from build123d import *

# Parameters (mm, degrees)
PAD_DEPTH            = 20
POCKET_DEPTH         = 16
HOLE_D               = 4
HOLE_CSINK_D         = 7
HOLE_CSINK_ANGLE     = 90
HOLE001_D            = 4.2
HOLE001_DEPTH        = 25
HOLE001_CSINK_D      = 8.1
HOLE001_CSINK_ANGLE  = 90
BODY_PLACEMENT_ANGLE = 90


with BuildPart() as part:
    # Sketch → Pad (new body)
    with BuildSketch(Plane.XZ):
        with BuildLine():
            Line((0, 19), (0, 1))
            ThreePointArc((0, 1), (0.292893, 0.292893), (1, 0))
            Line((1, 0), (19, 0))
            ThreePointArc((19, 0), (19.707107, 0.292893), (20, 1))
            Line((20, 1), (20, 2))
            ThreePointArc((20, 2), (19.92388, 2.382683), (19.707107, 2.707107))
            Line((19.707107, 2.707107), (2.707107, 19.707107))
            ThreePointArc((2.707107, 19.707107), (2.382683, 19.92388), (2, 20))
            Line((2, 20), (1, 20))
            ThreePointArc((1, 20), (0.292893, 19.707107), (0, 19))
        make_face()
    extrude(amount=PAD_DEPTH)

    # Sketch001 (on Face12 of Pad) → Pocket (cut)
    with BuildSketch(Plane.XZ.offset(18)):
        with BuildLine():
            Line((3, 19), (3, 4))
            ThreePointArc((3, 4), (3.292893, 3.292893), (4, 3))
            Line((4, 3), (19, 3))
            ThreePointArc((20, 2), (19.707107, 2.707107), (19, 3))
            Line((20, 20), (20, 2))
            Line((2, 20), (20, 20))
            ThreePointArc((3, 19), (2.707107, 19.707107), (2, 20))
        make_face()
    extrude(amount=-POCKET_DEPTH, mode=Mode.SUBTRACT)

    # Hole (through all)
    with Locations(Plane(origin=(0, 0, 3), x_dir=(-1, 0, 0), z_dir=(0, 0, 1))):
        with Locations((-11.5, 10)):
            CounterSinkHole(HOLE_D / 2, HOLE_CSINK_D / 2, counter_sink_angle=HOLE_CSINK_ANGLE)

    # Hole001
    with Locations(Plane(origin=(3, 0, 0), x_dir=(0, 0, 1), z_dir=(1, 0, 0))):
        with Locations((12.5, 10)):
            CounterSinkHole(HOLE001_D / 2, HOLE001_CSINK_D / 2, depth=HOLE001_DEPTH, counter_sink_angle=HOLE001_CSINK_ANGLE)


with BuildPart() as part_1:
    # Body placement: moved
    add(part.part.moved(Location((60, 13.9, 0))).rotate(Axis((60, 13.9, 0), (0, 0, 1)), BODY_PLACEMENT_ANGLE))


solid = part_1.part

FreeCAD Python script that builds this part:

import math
import FreeCAD as App
import Part
import Sketcher

doc = App.newDocument("Part")
body = doc.addObject("PartDesign::Body", "Body")

sketch1 = body.newObject("Sketcher::SketchObject", "Sketch")
sketch1.AttachmentSupport = (doc.getObject("XZ_Plane"), [""])
sketch1.MapMode = "FlatFace"
sketch1.addGeometry(Part.LineSegment(App.Vector(0, 19, 0), App.Vector(0, 1, 0)), False)
sketch1.addGeometry(Part.ArcOfCircle(Part.Circle(App.Vector(0.999999, 0.999999, 0), App.Vector(0, 0, 1), 0.999999), math.radians(179.999957), math.radians(270.000043)), False)
sketch1.addGeometry(Part.LineSegment(App.Vector(1, 0, 0), App.Vector(19, 0, 0)), False)
sketch1.addGeometry(Part.ArcOfCircle(Part.Circle(App.Vector(19.000001, 0.999999, 0), App.Vector(0, 0, 1), 0.999999), math.radians(-90.000043), math.radians(0.000043)), False)
sketch1.addGeometry(Part.LineSegment(App.Vector(20, 1, 0), App.Vector(20, 2, 0)), False)
sketch1.addGeometry(Part.ArcOfCircle(Part.Circle(App.Vector(19.000001, 2.000001, 0), App.Vector(0, 0, 1), 0.999999), math.radians(-0.000054), math.radians(45.000011)), False)
sketch1.addGeometry(Part.LineSegment(App.Vector(19.707107, 2.707107, 0), App.Vector(2.707107, 19.707107, 0)), False)
sketch1.addGeometry(Part.ArcOfCircle(Part.Circle(App.Vector(2.000001, 19.000001, 0), App.Vector(0, 0, 1), 0.999999), math.radians(44.999989), math.radians(90.000054)), False)
sketch1.addGeometry(Part.LineSegment(App.Vector(2, 20, 0), App.Vector(1, 20, 0)), False)
sketch1.addGeometry(Part.ArcOfCircle(Part.Circle(App.Vector(0.999999, 19.000001, 0), App.Vector(0, 0, 1), 0.999999), math.radians(89.999957), math.radians(180.000043)), False)
sketch1.addConstraint(Sketcher.Constraint("Tangent", 0, 2, 1, 1))
sketch1.addConstraint(Sketcher.Constraint("Tangent", 1, 2, 2, 1))
sketch1.addConstraint(Sketcher.Constraint("Tangent", 2, 2, 3, 1))
sketch1.addConstraint(Sketcher.Constraint("Tangent", 3, 2, 4, 1))
sketch1.addConstraint(Sketcher.Constraint("Tangent", 4, 2, 5, 1))
sketch1.addConstraint(Sketcher.Constraint("Tangent", 5, 2, 6, 1))
sketch1.addConstraint(Sketcher.Constraint("Tangent", 6, 2, 7, 1))
sketch1.addConstraint(Sketcher.Constraint("Tangent", 7, 2, 8, 1))
sketch1.addConstraint(Sketcher.Constraint("Tangent", 8, 2, 9, 1))
sketch1.addConstraint(Sketcher.Constraint("Tangent", 9, 2, 0, 1))
sketch1.addConstraint(Sketcher.Constraint("Vertical", 0))
sketch1.addConstraint(Sketcher.Constraint("Horizontal", 2))
sketch1.addConstraint(Sketcher.Constraint("Vertical", 4))
sketch1.addConstraint(Sketcher.Constraint("Horizontal", 8))
sketch1.addConstraint(Sketcher.Constraint("Equal", 1, 3))
sketch1.addConstraint(Sketcher.Constraint("Equal", 3, 5))
sketch1.addConstraint(Sketcher.Constraint("Equal", 5, 7))
sketch1.addConstraint(Sketcher.Constraint("Equal", 7, 9))
sketch1.addConstraint(Sketcher.Constraint("PointOnObject", 0, 2, -2))
sketch1.addConstraint(Sketcher.Constraint("PointOnObject", 1, 2, -1))
sketch1.addConstraint(Sketcher.Constraint("Equal", 2, 0))
sketch1.addConstraint(Sketcher.Constraint("Equal", 8, 4))
sketch1.addConstraint(Sketcher.Constraint("Radius", 1, 0.999999))
sketch1.addConstraint(Sketcher.Constraint("DistanceX", 2, 1, 2, 2, 18.0))
sketch1.addConstraint(Sketcher.Constraint("DistanceX", 8, 2, 8, 1, 1.0))
pad1 = body.newObject("PartDesign::Pad", "Pad")
pad1.Profile = sketch1
pad1.Length = 20

sketch2 = body.newObject("Sketcher::SketchObject", "Sketch001")
sketch2.AttachmentSupport = (doc.getObject("XZ_Plane"), [""])
sketch2.MapMode = "FlatFace"
sketch2.AttachmentOffset = App.Placement(App.Vector(0, 0, 18), App.Rotation())
sketch2.addGeometry(Part.LineSegment(App.Vector(3, 19, 0), App.Vector(3, 4, 0)), False)
sketch2.addGeometry(Part.ArcOfCircle(Part.Circle(App.Vector(3.999999, 3.999999, 0), App.Vector(0, 0, 1), 0.999999), math.radians(179.999957), math.radians(270.000043)), False)
sketch2.addGeometry(Part.LineSegment(App.Vector(4, 3, 0), App.Vector(19, 3, 0)), False)
sketch2.addGeometry(Part.ArcOfCircle(Part.Circle(App.Vector(19.000001, 2.000001, 0), App.Vector(0, 0, 1), 0.999999), math.radians(-0.000043), math.radians(90.000043)), False)
sketch2.addGeometry(Part.LineSegment(App.Vector(20, 2, 0), App.Vector(20, 20, 0)), False)
sketch2.addGeometry(Part.LineSegment(App.Vector(20, 20, 0), App.Vector(2, 20, 0)), False)
sketch2.addGeometry(Part.ArcOfCircle(Part.Circle(App.Vector(2.000001, 19.000001, 0), App.Vector(0, 0, 1), 0.999999), math.radians(-0.000043), math.radians(90.000043)), False)
sketch2.addConstraint(Sketcher.Constraint("Tangent", 0, 2, 1, 1))
sketch2.addConstraint(Sketcher.Constraint("Tangent", 1, 2, 2, 1))
sketch2.addConstraint(Sketcher.Constraint("Tangent", 2, 2, 3, 2))
sketch2.addConstraint(Sketcher.Constraint("Tangent", 3, 1, 4, 1))
sketch2.addConstraint(Sketcher.Constraint("Coincident", 4, 2, 5, 1))
sketch2.addConstraint(Sketcher.Constraint("Tangent", 5, 2, 6, 2))
sketch2.addConstraint(Sketcher.Constraint("Tangent", 6, 1, 0, 1))
sketch2.addConstraint(Sketcher.Constraint("Vertical", 0))
sketch2.addConstraint(Sketcher.Constraint("Horizontal", 2))
sketch2.addConstraint(Sketcher.Constraint("Vertical", 4))
sketch2.addConstraint(Sketcher.Constraint("Horizontal", 5))
sketch2.addConstraint(Sketcher.Constraint("Equal", 1, 3))
sketch2.addConstraint(Sketcher.Constraint("Equal", 3, 6))
sketch2.addConstraint(Sketcher.Constraint("Equal", 2, 0))
sketch2.addConstraint(Sketcher.Constraint("Radius", 1, 0.999999))
sketch2.addConstraint(Sketcher.Constraint("DistanceX", 2, 1, 2, 2, 15.0))
sketch2.addConstraint(Sketcher.Constraint("DistanceX", -1, 1, 1, 3, 3.999999))
sketch2.addConstraint(Sketcher.Constraint("DistanceY", -1, 1, 1, 3, 3.999999))
pocket1 = body.newObject("PartDesign::Pocket", "Pocket")
pocket1.Profile = sketch2
pocket1.Length = 16

sketch3 = body.newObject("Sketcher::SketchObject", "Sketch002")
sketch3.AttachmentSupport = (doc.getObject("XY_Plane"), [""])
sketch3.MapMode = "FlatFace"
sketch3.AttachmentOffset = App.Placement(App.Vector(0, 0, 3), App.Rotation())
sketch3.addGeometry(Part.Circle(App.Vector(11.5, -10, 0), App.Vector(0, 0, 1), 2), False)
sketch3.addConstraint(Sketcher.Constraint("Diameter", 0, 4.0))
sketch3.addConstraint(Sketcher.Constraint("DistanceY", 0, 3, -1, 1, 10.0))
sketch3.addConstraint(Sketcher.Constraint("DistanceX", -1, 1, 0, 3, 11.5))
doc.recompute()
hole = body.newObject("PartDesign::Hole", "Hole")
hole.Profile = sketch3
hole.ThreadType = "None"
hole.Diameter = 4
hole.DepthType = "ThroughAll"
hole.HoleCutType = "Countersink"
hole.HoleCutDiameter = 7
hole.HoleCutCountersinkAngle = 90

sketch4 = body.newObject("Sketcher::SketchObject", "Sketch003")
sketch4.AttachmentSupport = (doc.getObject("YZ_Plane"), [""])
sketch4.MapMode = "FlatFace"
sketch4.AttachmentOffset = App.Placement(App.Vector(0, 0, 3), App.Rotation())
sketch4.addGeometry(Part.Circle(App.Vector(-10, 12.5, 0), App.Vector(0, 0, 1), 2.1), False)
sketch4.addConstraint(Sketcher.Constraint("Diameter", 0, 4.2))
sketch4.addConstraint(Sketcher.Constraint("DistanceX", 0, 3, -1, 1, 10.0))
sketch4.addConstraint(Sketcher.Constraint("DistanceY", -1, 1, 0, 3, 12.5))
doc.recompute()
hole2 = body.newObject("PartDesign::Hole", "Hole001")
hole2.Profile = sketch4
hole2.ThreadType = "None"
hole2.Diameter = 4.2
hole2.DepthType = "Dimension"
hole2.Depth = 25
hole2.DrillPoint = "Flat"
hole2.HoleCutType = "Countersink"
hole2.HoleCutDiameter = 8.1
hole2.HoleCutCountersinkAngle = 90
body2 = doc.addObject("PartDesign::Body", "Body001")
doc.recompute()

body.Placement = App.Placement(App.Vector(60, 13.9, 0), App.Rotation(App.Vector(0, 0, 1), 90))
boolean = body2.newObject("PartDesign::Boolean", "Boolean")
boolean.Type = "Fuse"
boolean.addObjects([body])

doc.recompute()
